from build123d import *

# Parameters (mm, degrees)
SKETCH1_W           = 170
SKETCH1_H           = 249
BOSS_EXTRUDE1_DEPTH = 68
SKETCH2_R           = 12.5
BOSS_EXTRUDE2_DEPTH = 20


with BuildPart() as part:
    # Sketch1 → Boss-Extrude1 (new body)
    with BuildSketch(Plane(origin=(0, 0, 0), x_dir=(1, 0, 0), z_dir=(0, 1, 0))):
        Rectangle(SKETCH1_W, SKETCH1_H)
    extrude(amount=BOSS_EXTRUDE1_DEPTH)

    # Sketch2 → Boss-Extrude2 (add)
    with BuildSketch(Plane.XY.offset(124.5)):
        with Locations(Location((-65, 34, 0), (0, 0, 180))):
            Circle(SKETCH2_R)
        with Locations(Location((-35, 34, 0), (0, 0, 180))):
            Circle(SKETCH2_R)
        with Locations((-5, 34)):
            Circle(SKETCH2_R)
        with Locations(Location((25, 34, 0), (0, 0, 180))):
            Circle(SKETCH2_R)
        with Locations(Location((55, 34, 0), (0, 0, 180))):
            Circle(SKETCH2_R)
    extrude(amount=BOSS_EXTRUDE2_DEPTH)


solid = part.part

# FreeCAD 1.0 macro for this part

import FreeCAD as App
import Part
import Sketcher
from FreeCAD import Vector
Q = App.Units.Quantity


def add_polygon(sketch, points):
    """Adds a closed chain of lines whose ends are joined by coincident constraints."""
    first, n = sketch.GeometryCount, len(points)
    for a, b in zip(points, points[1:] + points[:1]):
        sketch.addGeometry(Part.LineSegment(App.Vector(*a, 0), App.Vector(*b, 0)), False)
    for i in range(n):
        sketch.addConstraint(Sketcher.Constraint("Coincident", first + i, 2, first + (i + 1) % n, 1))

doc = App.newDocument("Part")
body = doc.addObject("PartDesign::Body", "Body")

# Sketch on XZ plane
sketch1 = body.newObject("Sketcher::SketchObject", "Sketch")
sketch1.AttachmentSupport = (doc.getObject("XZ_Plane"), [""])
sketch1.MapMode = "FlatFace"
add_polygon(sketch1, [(-85, -124), (-85, 124), (85, 124), (85, -124)])  # lines 0-3
sketch1.addConstraint(Sketcher.Constraint("Vertical", 0))
sketch1.addConstraint(Sketcher.Constraint("Horizontal", 1))
sketch1.addConstraint(Sketcher.Constraint("Vertical", 2))
sketch1.addConstraint(Sketcher.Constraint("Horizontal", 3))
sketch1.addConstraint(Sketcher.Constraint("Symmetric", 0, 2, 2, 2, -1, 1))
sketch1.addConstraint(Sketcher.Constraint("DistanceX", 1, 1, 1, 2, Q("170 mm")))
sketch1.addConstraint(Sketcher.Constraint("DistanceY", 0, 1, 0, 2, Q("249 mm")))
pad1 = body.newObject("PartDesign::Pad", "Pad")
pad1.Profile = sketch1
pad1.Length = 68
pad1.Reversed = True

# Sketch on XY plane
sketch2 = body.newObject("Sketcher::SketchObject", "Sketch001")
sketch2.AttachmentSupport = (doc.getObject("XY_Plane"), [""])
sketch2.MapMode = "FlatFace"
sketch2.AttachmentOffset = App.Placement(Vector(0, 0, 124.5), App.Rotation())
sketch2.addGeometry(Part.Circle(Vector(-65, 34, 0), Vector(0, 0, 1), 12), False)
sketch2.addGeometry(Part.Circle(Vector(-35, 34, 0), Vector(0, 0, 1), 12), False)
sketch2.addGeometry(Part.Circle(Vector(-5, 34, 0), Vector(0, 0, 1), 12), False)
sketch2.addGeometry(Part.Circle(Vector(25, 34, 0), Vector(0, 0, 1), 12), False)
sketch2.addGeometry(Part.Circle(Vector(55, 34, 0), Vector(0, 0, 1), 12), False)
sketch2.addConstraint(Sketcher.Constraint("Equal", 0, 1))
sketch2.addConstraint(Sketcher.Constraint("Equal", 1, 2))
sketch2.addConstraint(Sketcher.Constraint("Equal", 2, 3))
sketch2.addConstraint(Sketcher.Constraint("Equal", 3, 4))
sketch2.addConstraint(Sketcher.Constraint("Horizontal", 0, 3, 1, 3))
sketch2.addConstraint(Sketcher.Constraint("Horizontal", 1, 3, 2, 3))
sketch2.addConstraint(Sketcher.Constraint("Horizontal", 2, 3, 3, 3))
sketch2.addConstraint(Sketcher.Constraint("Horizontal", 3, 3, 4, 3))
sketch2.addConstraint(Sketcher.Constraint("Diameter", 0, Q("25 mm")))
sketch2.addConstraint(Sketcher.Constraint("DistanceX", 0, 3, -1, 1, Q("65 mm")))
sketch2.addConstraint(Sketcher.Constraint("DistanceY", -1, 1, 0, 3, Q("34 mm")))
sketch2.addConstraint(Sketcher.Constraint("DistanceX", 1, 3, -1, 1, Q("35 mm")))
sketch2.addConstraint(Sketcher.Constraint("DistanceX", 2, 3, -1, 1, Q("5 mm")))
sketch2.addConstraint(Sketcher.Constraint("DistanceX", -1, 1, 3, 3, Q("25 mm")))
sketch2.addConstraint(Sketcher.Constraint("DistanceX", -1, 1, 4, 3, Q("55 mm")))
pad2 = body.newObject("PartDesign::Pad", "Pad001")
pad2.Profile = sketch2
pad2.Length = 20

doc.recompute()
